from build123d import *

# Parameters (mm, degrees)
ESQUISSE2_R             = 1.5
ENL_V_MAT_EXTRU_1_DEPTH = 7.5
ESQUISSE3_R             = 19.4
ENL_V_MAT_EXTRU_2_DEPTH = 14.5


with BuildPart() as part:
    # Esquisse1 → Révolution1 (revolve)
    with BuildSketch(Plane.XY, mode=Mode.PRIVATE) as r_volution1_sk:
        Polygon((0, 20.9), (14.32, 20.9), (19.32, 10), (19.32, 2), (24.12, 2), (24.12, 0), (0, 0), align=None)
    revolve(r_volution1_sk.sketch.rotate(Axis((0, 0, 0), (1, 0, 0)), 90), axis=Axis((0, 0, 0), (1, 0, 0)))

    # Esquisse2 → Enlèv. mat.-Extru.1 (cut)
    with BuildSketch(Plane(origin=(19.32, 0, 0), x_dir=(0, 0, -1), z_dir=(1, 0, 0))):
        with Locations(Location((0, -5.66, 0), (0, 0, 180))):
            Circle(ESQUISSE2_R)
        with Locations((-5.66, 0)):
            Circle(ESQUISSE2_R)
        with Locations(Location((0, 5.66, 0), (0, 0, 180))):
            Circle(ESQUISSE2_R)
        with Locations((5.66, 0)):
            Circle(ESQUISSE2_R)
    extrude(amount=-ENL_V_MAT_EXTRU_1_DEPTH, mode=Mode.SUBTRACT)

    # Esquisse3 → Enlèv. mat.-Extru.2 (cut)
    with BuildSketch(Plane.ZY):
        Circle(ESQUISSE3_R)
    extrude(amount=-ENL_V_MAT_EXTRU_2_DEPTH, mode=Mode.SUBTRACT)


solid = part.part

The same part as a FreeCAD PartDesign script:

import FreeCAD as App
import Part
import Sketcher

V = App.Vector

doc = App.newDocument("Part")
body = doc.addObject("PartDesign::Body", "Body")

# Sketch on XY plane
sketch1 = body.newObject("Sketcher::SketchObject", "Sketch")
sketch1.AttachmentSupport = (doc.getObject("XY_Plane"), [""])
sketch1.MapMode = "FlatFace"
sketch1.addGeometry(Part.LineSegment(V(14.3, 20.9, 0), V(0, 20.9, 0)), False)
sketch1.addGeometry(Part.LineSegment(V(0, 20.9, 0), V(0, 0, 0)), False)
sketch1.addGeometry(Part.LineSegment(V(0, 0, 0), V(24.1, 0, 0)), False)
sketch1.addGeometry(Part.LineSegment(V(24.1, 0, 0), V(24.1, 2, 0)), False)
sketch1.addGeometry(Part.LineSegment(V(24.1, 2, 0), V(19.3, 2, 0)), False)
sketch1.addGeometry(Part.LineSegment(V(19.3, 2, 0), V(19.3, 10, 0)), False)
sketch1.addGeometry(Part.LineSegment(V(19.3, 10, 0), V(14.3, 20.9, 0)), False)
sketch1.addConstraint(Sketcher.Constraint("Coincident", 0, 2, 1, 1))
sketch1.addConstraint(Sketcher.Constraint("Coincident", 1, 2, 2, 1))
sketch1.addConstraint(Sketcher.Constraint("Coincident", 2, 2, 3, 1))
sketch1.addConstraint(Sketcher.Constraint("Coincident", 3, 2, 4, 1))
sketch1.addConstraint(Sketcher.Constraint("Coincident", 4, 2, 5, 1))
sketch1.addConstraint(Sketcher.Constraint("Coincident", 5, 2, 6, 1))
sketch1.addConstraint(Sketcher.Constraint("Coincident", 6, 2, 0, 1))
sketch1.addConstraint(Sketcher.Constraint("Horizontal", 0))
sketch1.addConstraint(Sketcher.Constraint("Vertical", 1))
sketch1.addConstraint(Sketcher.Constraint("Horizontal", 2))
sketch1.addConstraint(Sketcher.Constraint("Vertical", 3))
sketch1.addConstraint(Sketcher.Constraint("Horizontal", 4))
sketch1.addConstraint(Sketcher.Constraint("Vertical", 5))
sketch1.addConstraint(Sketcher.Constraint("Coincident", 1, 2, -1, 1))
sketch1.addConstraint(Sketcher.Constraint("DistanceY", 3, 1, 3, 2, 2.0))
sketch1.addConstraint(Sketcher.Constraint("DistanceY", 5, 1, 5, 2, 8.0))
sketch1.addConstraint(Sketcher.Constraint("DistanceX", 4, 2, 4, 1, 4.8))
sketch1.addConstraint(Sketcher.Constraint("DistanceY", 1, 2, 1, 1, 20.9))
sketch1.addConstraint(Sketcher.Constraint("DistanceX", 6, 2, 5, 2, 5.0))
sketch1.addConstraint(Sketcher.Constraint("DistanceX", 0, 2, 0, 1, 14.32))
revolution = body.newObject("PartDesign::Revolution", "Revolution")
revolution.Profile = sketch1
revolution.ReferenceAxis = (sketch1, ["H_Axis"])
revolution.Angle = 360

# Sketch on YZ plane
sketch2 = body.newObject("Sketcher::SketchObject", "Sketch001")
sketch2.AttachmentSupport = (doc.getObject("YZ_Plane"), [""])
sketch2.MapMode = "FlatFace"
sketch2.AttachmentOffset = App.Placement(V(0, 0, 19.32), App.Rotation())
sketch2.addGeometry(Part.Circle(V(-5.7, 0, 0), V(0, 0, 1), 1.5), False)
sketch2.addGeometry(Part.Circle(V(0, 5.7, 0), V(0, 0, 1), 1.5), False)
sketch2.addGeometry(Part.Circle(V(5.7, 0, 0), V(0, 0, 1), 1.5), False)
sketch2.addGeometry(Part.Circle(V(0, -5.7, 0), V(0, 0, 1), 1.5), False)
sketch2.addConstraint(Sketcher.Constraint("Equal", 0, 1))
sketch2.addConstraint(Sketcher.Constraint("Equal", 1, 2))
sketch2.addConstraint(Sketcher.Constraint("Equal", 2, 3))
sketch2.addConstraint(Sketcher.Constraint("Symmetric", 0, 3, 2, 3, -1, 1))
sketch2.addConstraint(Sketcher.Constraint("Symmetric", 1, 3, 3, 3, -1, 1))
sketch2.addConstraint(Sketcher.Constraint("PointOnObject", 0, 3, -1))
sketch2.addConstraint(Sketcher.Constraint("PointOnObject", 1, 3, -2))
sketch2.addConstraint(Sketcher.Constraint("Diameter", 0, 3.0))
sketch2.addConstraint(Sketcher.Constraint("DistanceX", 0, 3, -1, 1, 5.66))
sketch2.addConstraint(Sketcher.Constraint("DistanceY", -1, 1, 1, 3, 5.66))
pocket1 = body.newObject("PartDesign::Pocket", "Pocket")
pocket1.Profile = sketch2
pocket1.Length = 7.5

# Sketch on YZ plane
sketch3 = body.newObject("Sketcher::SketchObject", "Sketch002")
sketch3.AttachmentSupport = (doc.getObject("YZ_Plane"), [""])
sketch3.MapMode = "FlatFace"
sketch3.addGeometry(Part.Circle(V(0, 0, 0), V(0, 0, 1), 19), False)
sketch3.addConstraint(Sketcher.Constraint("Coincident", 0, 3, -1, 1))
sketch3.addConstraint(Sketcher.Constraint("Diameter", 0, 38.8))
pocket2 = body.newObject("PartDesign::Pocket", "Pocket001")
pocket2.Profile = sketch3
pocket2.Length = 14.5
pocket2.Reversed = True

doc.recompute()
